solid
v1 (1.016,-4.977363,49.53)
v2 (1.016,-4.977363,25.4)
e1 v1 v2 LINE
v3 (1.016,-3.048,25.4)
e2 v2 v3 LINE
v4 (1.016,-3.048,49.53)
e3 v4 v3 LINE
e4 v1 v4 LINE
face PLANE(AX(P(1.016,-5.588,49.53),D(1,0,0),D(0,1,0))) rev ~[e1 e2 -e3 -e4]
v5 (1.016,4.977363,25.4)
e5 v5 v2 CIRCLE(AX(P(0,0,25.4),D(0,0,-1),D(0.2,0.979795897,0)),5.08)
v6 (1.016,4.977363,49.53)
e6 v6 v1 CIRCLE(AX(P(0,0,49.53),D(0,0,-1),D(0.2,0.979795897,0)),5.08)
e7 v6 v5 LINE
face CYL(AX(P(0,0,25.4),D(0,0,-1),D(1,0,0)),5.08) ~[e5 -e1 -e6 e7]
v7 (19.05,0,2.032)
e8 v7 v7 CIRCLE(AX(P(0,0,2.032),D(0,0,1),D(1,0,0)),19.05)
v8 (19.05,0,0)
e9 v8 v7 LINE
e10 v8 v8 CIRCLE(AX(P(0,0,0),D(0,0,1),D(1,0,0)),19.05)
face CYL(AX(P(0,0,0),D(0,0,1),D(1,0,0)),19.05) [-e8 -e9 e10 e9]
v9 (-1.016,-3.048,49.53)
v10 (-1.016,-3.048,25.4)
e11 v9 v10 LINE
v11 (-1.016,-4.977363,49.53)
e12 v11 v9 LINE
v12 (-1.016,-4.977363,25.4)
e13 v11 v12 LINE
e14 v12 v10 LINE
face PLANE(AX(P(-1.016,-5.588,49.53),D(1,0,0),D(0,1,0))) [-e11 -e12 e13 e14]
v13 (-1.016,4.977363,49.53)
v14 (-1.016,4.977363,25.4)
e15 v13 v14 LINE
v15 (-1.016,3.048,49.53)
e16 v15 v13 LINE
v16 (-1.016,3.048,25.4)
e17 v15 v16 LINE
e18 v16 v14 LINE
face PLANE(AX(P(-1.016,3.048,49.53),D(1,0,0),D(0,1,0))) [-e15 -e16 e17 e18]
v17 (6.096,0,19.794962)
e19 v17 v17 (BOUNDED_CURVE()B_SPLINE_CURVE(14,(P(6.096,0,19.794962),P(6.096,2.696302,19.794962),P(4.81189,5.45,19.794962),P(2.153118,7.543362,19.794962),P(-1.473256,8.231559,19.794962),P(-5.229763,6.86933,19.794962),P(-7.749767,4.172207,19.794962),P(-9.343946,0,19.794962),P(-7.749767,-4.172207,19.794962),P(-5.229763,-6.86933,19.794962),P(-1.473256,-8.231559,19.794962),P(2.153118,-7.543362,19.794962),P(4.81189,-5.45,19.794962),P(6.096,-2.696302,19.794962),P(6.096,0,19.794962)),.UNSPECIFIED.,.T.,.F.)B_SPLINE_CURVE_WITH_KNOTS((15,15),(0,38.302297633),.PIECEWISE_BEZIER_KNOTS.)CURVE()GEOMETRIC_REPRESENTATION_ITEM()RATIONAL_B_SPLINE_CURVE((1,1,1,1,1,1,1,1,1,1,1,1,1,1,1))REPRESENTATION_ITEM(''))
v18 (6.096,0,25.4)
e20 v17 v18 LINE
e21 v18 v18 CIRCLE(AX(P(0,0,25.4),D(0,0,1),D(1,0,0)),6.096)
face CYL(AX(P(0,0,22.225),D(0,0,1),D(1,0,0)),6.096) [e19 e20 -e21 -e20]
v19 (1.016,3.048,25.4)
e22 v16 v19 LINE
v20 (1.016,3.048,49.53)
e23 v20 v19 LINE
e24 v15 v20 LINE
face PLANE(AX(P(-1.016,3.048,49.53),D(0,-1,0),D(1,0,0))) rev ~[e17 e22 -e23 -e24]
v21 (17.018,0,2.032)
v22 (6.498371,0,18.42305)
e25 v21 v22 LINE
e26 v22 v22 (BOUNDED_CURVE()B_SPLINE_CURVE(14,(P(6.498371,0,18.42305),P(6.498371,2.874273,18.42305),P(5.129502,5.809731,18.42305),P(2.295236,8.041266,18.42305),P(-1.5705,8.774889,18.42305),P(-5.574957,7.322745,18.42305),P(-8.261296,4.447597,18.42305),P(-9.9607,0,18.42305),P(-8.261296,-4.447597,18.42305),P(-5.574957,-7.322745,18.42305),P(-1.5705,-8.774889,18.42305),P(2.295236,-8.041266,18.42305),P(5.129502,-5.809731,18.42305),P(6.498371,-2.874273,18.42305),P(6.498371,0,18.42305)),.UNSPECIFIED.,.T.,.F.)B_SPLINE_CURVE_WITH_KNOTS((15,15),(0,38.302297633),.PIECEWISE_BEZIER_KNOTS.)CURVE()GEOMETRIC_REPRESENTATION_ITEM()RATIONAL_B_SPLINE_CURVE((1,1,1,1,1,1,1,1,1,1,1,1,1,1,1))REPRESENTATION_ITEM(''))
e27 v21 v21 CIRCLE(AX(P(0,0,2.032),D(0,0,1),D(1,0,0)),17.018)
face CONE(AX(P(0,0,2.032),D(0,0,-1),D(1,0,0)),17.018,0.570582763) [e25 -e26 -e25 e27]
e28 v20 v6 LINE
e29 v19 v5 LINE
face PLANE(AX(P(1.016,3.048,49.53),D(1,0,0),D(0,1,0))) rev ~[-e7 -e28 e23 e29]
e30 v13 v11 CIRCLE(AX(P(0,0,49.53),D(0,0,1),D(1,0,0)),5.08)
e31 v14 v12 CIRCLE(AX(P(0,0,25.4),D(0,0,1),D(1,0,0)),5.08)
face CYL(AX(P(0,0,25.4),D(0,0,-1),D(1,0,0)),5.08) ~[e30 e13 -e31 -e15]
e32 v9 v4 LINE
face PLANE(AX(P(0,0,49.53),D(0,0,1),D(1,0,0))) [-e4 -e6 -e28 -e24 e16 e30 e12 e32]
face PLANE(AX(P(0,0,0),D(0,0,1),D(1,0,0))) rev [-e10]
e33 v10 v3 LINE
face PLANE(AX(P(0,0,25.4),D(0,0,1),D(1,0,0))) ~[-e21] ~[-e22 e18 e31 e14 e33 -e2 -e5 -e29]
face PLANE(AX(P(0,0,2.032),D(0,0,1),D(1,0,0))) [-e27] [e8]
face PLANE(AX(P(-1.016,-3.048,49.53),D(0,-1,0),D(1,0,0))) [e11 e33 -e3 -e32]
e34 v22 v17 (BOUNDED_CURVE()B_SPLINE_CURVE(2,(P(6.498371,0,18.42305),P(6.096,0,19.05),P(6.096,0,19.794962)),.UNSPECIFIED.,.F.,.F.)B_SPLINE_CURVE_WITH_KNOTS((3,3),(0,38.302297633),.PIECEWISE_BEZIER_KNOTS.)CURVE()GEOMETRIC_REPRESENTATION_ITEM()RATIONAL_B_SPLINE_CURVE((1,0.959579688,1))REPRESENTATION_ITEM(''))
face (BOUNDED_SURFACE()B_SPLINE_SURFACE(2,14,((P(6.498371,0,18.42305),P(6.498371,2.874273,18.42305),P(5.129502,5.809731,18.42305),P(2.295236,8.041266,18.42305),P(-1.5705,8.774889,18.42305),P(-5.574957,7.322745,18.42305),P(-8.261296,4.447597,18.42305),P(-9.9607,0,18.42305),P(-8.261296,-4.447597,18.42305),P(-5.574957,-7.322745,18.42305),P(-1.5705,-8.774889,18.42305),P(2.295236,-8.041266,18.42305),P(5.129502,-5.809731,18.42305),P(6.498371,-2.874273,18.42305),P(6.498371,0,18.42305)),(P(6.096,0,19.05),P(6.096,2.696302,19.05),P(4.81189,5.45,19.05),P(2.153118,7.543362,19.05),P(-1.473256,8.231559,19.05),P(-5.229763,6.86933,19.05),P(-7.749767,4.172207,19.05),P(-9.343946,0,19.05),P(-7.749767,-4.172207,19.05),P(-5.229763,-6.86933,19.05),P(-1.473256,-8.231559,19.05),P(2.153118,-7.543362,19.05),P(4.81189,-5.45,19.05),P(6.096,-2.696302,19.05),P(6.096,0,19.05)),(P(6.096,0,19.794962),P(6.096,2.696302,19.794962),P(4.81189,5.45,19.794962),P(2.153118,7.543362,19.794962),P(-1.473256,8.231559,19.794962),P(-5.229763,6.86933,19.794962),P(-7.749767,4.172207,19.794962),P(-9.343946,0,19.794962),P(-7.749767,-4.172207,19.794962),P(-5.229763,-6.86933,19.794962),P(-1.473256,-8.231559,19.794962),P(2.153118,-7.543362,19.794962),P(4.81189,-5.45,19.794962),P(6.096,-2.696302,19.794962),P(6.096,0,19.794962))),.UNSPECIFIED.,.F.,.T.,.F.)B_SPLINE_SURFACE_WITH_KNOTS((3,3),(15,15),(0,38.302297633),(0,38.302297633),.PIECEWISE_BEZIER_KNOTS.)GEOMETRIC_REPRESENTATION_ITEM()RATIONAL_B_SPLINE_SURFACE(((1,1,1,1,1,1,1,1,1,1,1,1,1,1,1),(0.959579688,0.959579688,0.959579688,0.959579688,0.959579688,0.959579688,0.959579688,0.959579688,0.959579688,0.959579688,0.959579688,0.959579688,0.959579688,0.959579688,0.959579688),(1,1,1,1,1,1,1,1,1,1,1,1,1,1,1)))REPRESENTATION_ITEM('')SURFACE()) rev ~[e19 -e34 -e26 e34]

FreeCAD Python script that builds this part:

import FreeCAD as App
import Part
import Sketcher
from FreeCAD import Vector
Q = App.Units.Quantity


def edges_at(feature, points):
    """Names of the edges that pass closest to the given points."""
    edges = feature.Shape.Edges
    near = lambda p: min(range(len(edges)), key=lambda i: edges[i].distToShape(Part.Vertex(*p))[0])
    return sorted({f"Edge{near(p) + 1}" for p in points})


def add_polygon(sketch, points):
    """Adds a closed chain of lines whose ends are joined by coincident constraints."""
    first, n = sketch.GeometryCount, len(points)
    for a, b in zip(points, points[1:] + points[:1]):
        sketch.addGeometry(Part.LineSegment(App.Vector(*a, 0), App.Vector(*b, 0)), False)
    for i in range(n):
        sketch.addConstraint(Sketcher.Constraint("Coincident", first + i, 2, first + (i + 1) % n, 1))

doc = App.newDocument("Part")
body = doc.addObject("PartDesign::Body", "Body")

sketch1 = body.newObject("Sketcher::SketchObject", "Sketch")
sketch1.AttachmentSupport = (doc.getObject("XZ_Plane"), [""])
sketch1.MapMode = "FlatFace"
add_polygon(sketch1, [(0, 0), (19.1, 0), (19.1, 2), (17, 2), (6.1, 19.1), (6.1, 25.4), (0, 25.4)])
sketch1.addConstraint([
    Sketcher.Constraint("Horizontal", 0),
    Sketcher.Constraint("Vertical", 1),
    Sketcher.Constraint("Horizontal", 2),
    Sketcher.Constraint("Vertical", 4),
    Sketcher.Constraint("Horizontal", 5),
    Sketcher.Constraint("Vertical", 6),
    Sketcher.Constraint("Coincident", 6, 2, -1, 1),
    Sketcher.Constraint("Equal", 2, 1),
    Sketcher.Constraint("DistanceY", 6, 2, 6, 1, Q("1 in")),
    Sketcher.Constraint("DistanceX", 0, 1, 0, 2, Q("0.75 in")),
    Sketcher.Constraint("DistanceX", 2, 2, 2, 1, Q("0.08 in")),
    Sketcher.Constraint("DistanceX", 5, 2, 5, 1, Q("0.24 in")),
    Sketcher.Constraint("DistanceY", 4, 1, 4, 2, Q("0.25 in")),
])
revolution = body.newObject("PartDesign::Revolution", "Revolution")
revolution.Profile = sketch1
revolution.ReferenceAxis = (sketch1, ["V_Axis"])
revolution.Angle = 360

sketch2 = body.newObject("Sketcher::SketchObject", "Sketch001")
sketch2.AttachmentSupport = (doc.getObject("XY_Plane"), [""])
sketch2.MapMode = "FlatFace"
sketch2.AttachmentOffset = App.Placement(Vector(0, 0, 1 * 25.4), App.Rotation())
sketch2.addGeometry(Part.Circle(Vector(0, 0, 0), Vector(0, 0, 1), 5), False)
sketch2.addConstraint([
    Sketcher.Constraint("Coincident", 0, 3, -1, 1),
    Sketcher.Constraint("Diameter", 0, Q("0.4 in")),
])
pad1 = body.newObject("PartDesign::Pad", "Pad")
pad1.Profile = sketch2
pad1.Length = Q("0.95 in")
doc.recompute()

fillet = body.newObject("PartDesign::Fillet", "Fillet")
fillet.Base = (pad1, edges_at(pad1, [(-6.096, 0, 19.05)]))
fillet.Radius = Q("0.1 in")

sketch3 = body.newObject("Sketcher::SketchObject", "Sketch002")
sketch3.AttachmentSupport = (doc.getObject("XY_Plane"), [""])
sketch3.MapMode = "FlatFace"
sketch3.AttachmentOffset = App.Placement(Vector(0, 0, 1.95 * 25.4), App.Rotation())
add_polygon(sketch3, [(-1, 5.6), (-1, 3), (1, 3), (1, 5.6)])
add_polygon(sketch3, [(-1, -3), (-1, -5.6), (1, -5.6), (1, -3)])
sketch3.addConstraint([
    Sketcher.Constraint("Vertical", 0),
    Sketcher.Constraint("Horizontal", 1),
    Sketcher.Constraint("Vertical", 2),
    Sketcher.Constraint("Horizontal", 3),
    Sketcher.Constraint("Vertical", 4),
    Sketcher.Constraint("Horizontal", 5),
    Sketcher.Constraint("Vertical", 6),
    Sketcher.Constraint("Horizontal", 7),
    Sketcher.Constraint("Symmetric", 2, 2, 4, 2, -1, 1),
    Sketcher.Constraint("Symmetric", 0, 2, 6, 2, -1, 1),
    Sketcher.Constraint("Vertical", 3, 2, 4, 2),
    Sketcher.Constraint("DistanceY", 0, 2, 0, 1, Q("0.1 in")),
    Sketcher.Constraint("DistanceX", 1, 1, 1, 2, Q("0.08 in")),
    Sketcher.Constraint("DistanceY", -1, 1, 0, 2, Q("0.12 in")),
])
pocket1 = body.newObject("PartDesign::Pocket", "Pocket")
pocket1.Profile = sketch3
pocket1.Length = Q("0.95 in")

doc.recompute()
